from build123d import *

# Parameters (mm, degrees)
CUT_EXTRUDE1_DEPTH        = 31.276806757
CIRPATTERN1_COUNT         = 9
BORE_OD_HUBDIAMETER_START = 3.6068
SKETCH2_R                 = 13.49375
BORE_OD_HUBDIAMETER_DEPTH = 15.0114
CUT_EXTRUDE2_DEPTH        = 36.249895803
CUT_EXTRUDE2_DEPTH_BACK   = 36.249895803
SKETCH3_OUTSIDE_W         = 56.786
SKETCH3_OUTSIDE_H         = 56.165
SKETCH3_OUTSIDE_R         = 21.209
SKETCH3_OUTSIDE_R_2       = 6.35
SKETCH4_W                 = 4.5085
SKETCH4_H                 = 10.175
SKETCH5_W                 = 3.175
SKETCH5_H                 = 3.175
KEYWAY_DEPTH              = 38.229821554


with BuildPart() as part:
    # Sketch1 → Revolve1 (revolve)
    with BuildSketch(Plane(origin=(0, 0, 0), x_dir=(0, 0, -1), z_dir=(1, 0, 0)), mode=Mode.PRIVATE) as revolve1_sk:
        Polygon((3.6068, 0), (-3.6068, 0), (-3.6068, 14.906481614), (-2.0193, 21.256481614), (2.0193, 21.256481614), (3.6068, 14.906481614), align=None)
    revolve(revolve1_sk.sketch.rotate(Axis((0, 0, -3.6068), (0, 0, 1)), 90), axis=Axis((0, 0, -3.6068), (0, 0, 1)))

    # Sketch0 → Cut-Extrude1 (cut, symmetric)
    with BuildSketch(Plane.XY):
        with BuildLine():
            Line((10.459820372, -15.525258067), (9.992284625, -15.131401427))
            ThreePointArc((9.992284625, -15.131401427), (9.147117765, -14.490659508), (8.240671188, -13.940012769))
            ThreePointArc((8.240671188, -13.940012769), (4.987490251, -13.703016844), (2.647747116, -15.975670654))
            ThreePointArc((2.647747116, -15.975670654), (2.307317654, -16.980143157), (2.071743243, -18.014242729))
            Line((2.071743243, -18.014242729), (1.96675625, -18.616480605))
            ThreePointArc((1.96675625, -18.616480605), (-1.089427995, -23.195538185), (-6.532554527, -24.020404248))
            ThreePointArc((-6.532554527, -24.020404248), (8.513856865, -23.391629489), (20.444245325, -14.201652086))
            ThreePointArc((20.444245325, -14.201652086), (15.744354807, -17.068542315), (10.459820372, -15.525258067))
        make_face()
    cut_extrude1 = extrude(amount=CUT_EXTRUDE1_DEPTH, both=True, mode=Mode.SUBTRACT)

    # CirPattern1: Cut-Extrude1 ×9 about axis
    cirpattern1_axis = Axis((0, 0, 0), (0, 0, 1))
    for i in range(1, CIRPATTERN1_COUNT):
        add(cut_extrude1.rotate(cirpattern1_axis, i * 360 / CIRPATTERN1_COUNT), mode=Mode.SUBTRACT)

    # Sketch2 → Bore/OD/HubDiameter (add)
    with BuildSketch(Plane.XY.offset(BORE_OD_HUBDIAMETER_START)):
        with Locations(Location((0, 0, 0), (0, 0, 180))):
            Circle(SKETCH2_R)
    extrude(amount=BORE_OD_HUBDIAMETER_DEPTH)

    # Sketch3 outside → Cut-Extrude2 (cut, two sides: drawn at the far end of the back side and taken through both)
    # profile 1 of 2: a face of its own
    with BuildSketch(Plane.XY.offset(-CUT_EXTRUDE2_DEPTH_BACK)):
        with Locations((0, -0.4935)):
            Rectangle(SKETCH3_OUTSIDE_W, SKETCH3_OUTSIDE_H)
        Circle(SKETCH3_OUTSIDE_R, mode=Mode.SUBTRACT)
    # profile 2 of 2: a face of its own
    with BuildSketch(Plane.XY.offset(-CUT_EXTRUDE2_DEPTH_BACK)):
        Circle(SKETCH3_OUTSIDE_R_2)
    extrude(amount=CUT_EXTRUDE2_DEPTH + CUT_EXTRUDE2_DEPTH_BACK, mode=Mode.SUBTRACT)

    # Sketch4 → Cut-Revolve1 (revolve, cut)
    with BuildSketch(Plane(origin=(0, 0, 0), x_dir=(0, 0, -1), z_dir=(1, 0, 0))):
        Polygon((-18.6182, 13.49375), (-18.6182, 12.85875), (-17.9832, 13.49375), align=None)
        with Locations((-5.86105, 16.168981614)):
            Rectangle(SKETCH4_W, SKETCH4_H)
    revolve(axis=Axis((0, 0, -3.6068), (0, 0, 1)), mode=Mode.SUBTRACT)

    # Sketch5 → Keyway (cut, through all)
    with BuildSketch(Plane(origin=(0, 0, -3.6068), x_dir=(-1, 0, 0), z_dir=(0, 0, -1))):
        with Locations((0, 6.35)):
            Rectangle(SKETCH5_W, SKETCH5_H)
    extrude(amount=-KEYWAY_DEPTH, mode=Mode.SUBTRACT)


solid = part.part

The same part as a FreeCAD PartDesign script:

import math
import FreeCAD as App
import Part
import Sketcher

V = App.Vector
Q = App.Units.Quantity

doc = App.newDocument("Part")
body = doc.addObject("PartDesign::Body", "Body")

# Sketch on YZ plane
sketch1 = doc.addObject("Sketcher::SketchObject", "Sketch")
body.addObject(sketch1)
sketch1.AttachmentSupport = (doc.YZ_Plane, [""])
sketch1.MapMode = "FlatFace"
sketch1.addGeometry(Part.LineSegment(V(0, 3.6, 0), V(0, -3.6, 0)), False)
sketch1.addGeometry(Part.LineSegment(V(0, -3.6, 0), V(14.9, -3.6, 0)), False)
sketch1.addGeometry(Part.LineSegment(V(14.9, -3.6, 0), V(21.3, -2, 0)), False)
sketch1.addGeometry(Part.LineSegment(V(21.3, -2, 0), V(21.3, 2, 0)), False)
sketch1.addGeometry(Part.LineSegment(V(21.3, 2, 0), V(14.9, 3.6, 0)), False)
sketch1.addGeometry(Part.LineSegment(V(14.9, 3.6, 0), V(0, 3.6, 0)), False)
sketch1.addConstraint(Sketcher.Constraint("Coincident", 0, 2, 1, 1))
sketch1.addConstraint(Sketcher.Constraint("Coincident", 1, 2, 2, 1))
sketch1.addConstraint(Sketcher.Constraint("Coincident", 2, 2, 3, 1))
sketch1.addConstraint(Sketcher.Constraint("Coincident", 3, 2, 4, 1))
sketch1.addConstraint(Sketcher.Constraint("Coincident", 4, 2, 5, 1))
sketch1.addConstraint(Sketcher.Constraint("Coincident", 5, 2, 0, 1))
sketch1.addConstraint(Sketcher.Constraint("Vertical", 0))
sketch1.addConstraint(Sketcher.Constraint("Horizontal", 1))
sketch1.addConstraint(Sketcher.Constraint("Vertical", 3))
sketch1.addConstraint(Sketcher.Constraint("Horizontal", 5))
sketch1.addConstraint(Sketcher.Constraint("Symmetric", 0, 2, 5, 2, -1, 1))
sketch1.addConstraint(Sketcher.Constraint("Vertical", 1, 2, 4, 2))
sketch1.addConstraint(Sketcher.Constraint("Equal", 2, 4))
sketch1.addConstraint(Sketcher.Constraint("DistanceY", 0, 2, 0, 1, Q("0.284 in")))
sketch1.addConstraint(Sketcher.Constraint("DistanceY", 3, 1, 3, 2, Q("0.159 in")))
sketch1.addConstraint(Sketcher.Constraint("DistanceX", 1, 2, 2, 2, Q("0.25 in")))
sketch1.addConstraint(Sketcher.Constraint("DistanceX", 1, 1, 1, 2, 14.906482))
revolution = doc.addObject("PartDesign::Revolution", "Revolution")
body.addObject(revolution)
revolution.Profile = sketch1
revolution.ReferenceAxis = (sketch1, ["V_Axis"])
revolution.Angle = 360

# Sketch on XY plane
sketch2 = doc.addObject("Sketcher::SketchObject", "Sketch001")
body.addObject(sketch2)
sketch2.AttachmentSupport = (doc.XY_Plane, [""])
sketch2.MapMode = "FlatFace"
sketch2.addGeometry(Part.LineSegment(V(10.5, -15.5, 0), V(10, -15.1, 0)), False)
sketch2.addGeometry(Part.ArcOfCircle(Part.Circle(V(3.3, -23, 0), V(0, 0, 1), 10.3), math.radians(49.89), math.radians(61.67)), False)
sketch2.addGeometry(Part.ArcOfCircle(Part.Circle(V(6.3, -17.4, 0), V(0, 0, 1), 4), math.radians(62), math.radians(158)), False)
sketch2.addGeometry(Part.ArcOfCircle(Part.Circle(V(12.2, -19.8, 0), V(0, 0, 1), 10.3), math.radians(158.33), math.radians(170.11)), False)
sketch2.addGeometry(Part.LineSegment(V(2.1, -18, 0), V(2, -18.6, 0)), False)
sketch2.addGeometry(Part.ArcOfCircle(Part.Circle(V(-4.7, -17.4, 0), V(0, 0, 1), 6.8), math.radians(-105), math.radians(-10)), False)
sketch2.addGeometry(Part.ArcOfCircle(Part.Circle(V(0, 0, 0), V(0, 0, 1), 24.9), math.radians(-105), math.radians(-35)), False)
sketch2.addGeometry(Part.ArcOfCircle(Part.Circle(V(14.8, -10.3, 0), V(0, 0, 1), 6.8), math.radians(-130), math.radians(-35)), False)
sketch2.addConstraint(Sketcher.Constraint("Tangent", 0, 2, 1, 1))
sketch2.addConstraint(Sketcher.Constraint("Tangent", 1, 2, 2, 1))
sketch2.addConstraint(Sketcher.Constraint("Tangent", 2, 2, 3, 1))
sketch2.addConstraint(Sketcher.Constraint("Tangent", 3, 2, 4, 1))
sketch2.addConstraint(Sketcher.Constraint("Tangent", 4, 2, 5, 2))
sketch2.addConstraint(Sketcher.Constraint("Tangent", 5, 1, 6, 1))
sketch2.addConstraint(Sketcher.Constraint("Tangent", 6, 2, 7, 2))
sketch2.addConstraint(Sketcher.Constraint("Tangent", 7, 1, 0, 1))
sketch2.addConstraint(Sketcher.Constraint("Coincident", 6, 3, -1, 1))
sketch2.addConstraint(Sketcher.Constraint("Equal", 1, 3))
sketch2.addConstraint(Sketcher.Constraint("Equal", 5, 7))
sketch2.addConstraint(Sketcher.Constraint("Horizontal", 2, 3, 5, 3))
sketch2.addConstraint(Sketcher.Constraint("Equal", 0, 4))
sketch2.addConstraint(Sketcher.Constraint("DistanceX", -1, 1, 2, 3, Q("0.25 in")))
sketch2.addConstraint(Sketcher.Constraint("Radius", 1, 10.323552))
sketch2.addConstraint(Sketcher.Constraint("DistanceX", 5, 3, -1, 1, Q("0.1868 in")))
sketch2.addConstraint(Sketcher.Constraint("Radius", 2, 3.983712))
sketch2.addConstraint(Sketcher.Constraint("Radius", 5, 6.812695))
sketch2.addConstraint(Sketcher.Constraint("Radius", 6, 24.892852))
sketch2.addConstraint(Sketcher.Constraint("DistanceY", 0, 2, -1, 1, 15.131401))
sketch2.addConstraint(Sketcher.Constraint("DistanceY", 4, 2, 2, 3, 1.169999))
pocket1 = doc.addObject("PartDesign::Pocket", "Pocket")
body.addObject(pocket1)
pocket1.Profile = sketch2
pocket1.Length = 62.553614
pocket1.Midplane = True
doc.recompute()

polarpattern = doc.addObject("PartDesign::PolarPattern", "PolarPattern")
body.addObject(polarpattern)
polarpattern.Originals = [pocket1]
polarpattern.Axis = (doc.Z_Axis, [""])
polarpattern.Angle = 360
polarpattern.Occurrences = 9
body.Tip = polarpattern

# Sketch on XY plane
sketch3 = doc.addObject("Sketcher::SketchObject", "Sketch002")
body.addObject(sketch3)
sketch3.AttachmentSupport = (doc.XY_Plane, [""])
sketch3.MapMode = "FlatFace"
sketch3.AttachmentOffset = App.Placement(V(0, 0, 0.142 * 25.4), App.Rotation())
sketch3.addGeometry(Part.Circle(V(0, 0, 0), V(0, 0, 1), 13), False)
sketch3.addConstraint(Sketcher.Constraint("Coincident", 0, 3, -1, 1))
sketch3.addConstraint(Sketcher.Constraint("Diameter", 0, Q("1.0625 in")))
pad1 = doc.addObject("PartDesign::Pad", "Pad")
body.addObject(pad1)
pad1.Profile = sketch3
pad1.Length = Q("0.591 in")

# Sketch on XY plane
sketch4 = doc.addObject("Sketcher::SketchObject", "Sketch003")
body.addObject(sketch4)
sketch4.AttachmentSupport = (doc.XY_Plane, [""])
sketch4.MapMode = "FlatFace"
sketch4.addGeometry(Part.LineSegment(V(-28, 28, 0), V(-28, -29, 0)), False)
sketch4.addGeometry(Part.LineSegment(V(-28, -29, 0), V(28, -29, 0)), False)
sketch4.addGeometry(Part.LineSegment(V(28, -29, 0), V(28, 28, 0)), False)
sketch4.addGeometry(Part.LineSegment(V(28, 28, 0), V(-28, 28, 0)), False)
sketch4.addGeometry(Part.Circle(V(0, 0, 0), V(0, 0, 1), 21), False)
sketch4.addGeometry(Part.Circle(V(0, 0, 0), V(0, 0, 1), 6), False)
sketch4.addConstraint(Sketcher.Constraint("Coincident", 0, 2, 1, 1))
sketch4.addConstraint(Sketcher.Constraint("Coincident", 1, 2, 2, 1))
sketch4.addConstraint(Sketcher.Constraint("Coincident", 2, 2, 3, 1))
sketch4.addConstraint(Sketcher.Constraint("Coincident", 3, 2, 0, 1))
sketch4.addConstraint(Sketcher.Constraint("Vertical", 0))
sketch4.addConstraint(Sketcher.Constraint("Horizontal", 1))
sketch4.addConstraint(Sketcher.Constraint("Vertical", 2))
sketch4.addConstraint(Sketcher.Constraint("Horizontal", 3))
sketch4.addConstraint(Sketcher.Constraint("Coincident", 4, 3, -1, 1))
sketch4.addConstraint(Sketcher.Constraint("Coincident", 5, 3, -1, 1))
sketch4.addConstraint(Sketcher.Constraint("Diameter", 5, Q("0.5 in")))
sketch4.addConstraint(Sketcher.Constraint("Diameter", 4, Q("1.67 in")))
sketch4.addConstraint(Sketcher.Constraint("DistanceX", 1, 1, 1, 2, 56.786))
sketch4.addConstraint(Sketcher.Constraint("DistanceY", 0, 2, 0, 1, 56.165))
sketch4.addConstraint(Sketcher.Constraint("DistanceX", 0, 2, -1, 1, 28.393))
sketch4.addConstraint(Sketcher.Constraint("DistanceY", 0, 2, -1, 1, 28.576))
pocket2 = doc.addObject("PartDesign::Pocket", "Pocket001")
body.addObject(pocket2)
pocket2.Profile = sketch4
pocket2.Type = "ThroughAll"
pocket2.Midplane = True

# Sketch on YZ plane
sketch5 = doc.addObject("Sketcher::SketchObject", "Sketch004")
body.addObject(sketch5)
sketch5.AttachmentSupport = (doc.YZ_Plane, [""])
sketch5.MapMode = "FlatFace"
sketch5.addGeometry(Part.LineSegment(V(13.5, 18.6, 0), V(12.9, 18.6, 0)), False)
sketch5.addGeometry(Part.LineSegment(V(12.9, 18.6, 0), V(13.5, 18, 0)), False)
sketch5.addGeometry(Part.LineSegment(V(13.5, 18, 0), V(13.5, 18.6, 0)), False)
sketch5.addGeometry(Part.LineSegment(V(21.3, 8.1, 0), V(11.1, 8.1, 0)), False)
sketch5.addGeometry(Part.LineSegment(V(11.1, 8.1, 0), V(11.1, 3.6, 0)), False)
sketch5.addGeometry(Part.LineSegment(V(11.1, 3.6, 0), V(21.3, 3.6, 0)), False)
sketch5.addGeometry(Part.LineSegment(V(21.3, 3.6, 0), V(21.3, 8.1, 0)), False)
sketch5.addConstraint(Sketcher.Constraint("Coincident", 0, 2, 1, 1))
sketch5.addConstraint(Sketcher.Constraint("Coincident", 1, 2, 2, 1))
sketch5.addConstraint(Sketcher.Constraint("Coincident", 2, 2, 0, 1))
sketch5.addConstraint(Sketcher.Constraint("Coincident", 3, 2, 4, 1))
sketch5.addConstraint(Sketcher.Constraint("Coincident", 4, 2, 5, 1))
sketch5.addConstraint(Sketcher.Constraint("Coincident", 5, 2, 6, 1))
sketch5.addConstraint(Sketcher.Constraint("Coincident", 6, 2, 3, 1))
sketch5.addConstraint(Sketcher.Constraint("Horizontal", 0))
sketch5.addConstraint(Sketcher.Constraint("Vertical", 2))
sketch5.addConstraint(Sketcher.Constraint("Horizontal", 3))
sketch5.addConstraint(Sketcher.Constraint("Vertical", 4))
sketch5.addConstraint(Sketcher.Constraint("Horizontal", 5))
sketch5.addConstraint(Sketcher.Constraint("Vertical", 6))
sketch5.addConstraint(Sketcher.Constraint("Equal", 0, 2))
sketch5.addConstraint(Sketcher.Constraint("DistanceX", 0, 2, 0, 1, Q("0.025 in")))
sketch5.addConstraint(Sketcher.Constraint("DistanceY", 4, 2, 4, 1, Q("0.1775 in")))
sketch5.addConstraint(Sketcher.Constraint("DistanceY", -1, 1, 0, 2, Q("0.733 in")))
sketch5.addConstraint(Sketcher.Constraint("DistanceX", -1, 1, 1, 2, Q("0.53125 in")))
sketch5.addConstraint(Sketcher.Constraint("DistanceY", -1, 1, 4, 2, Q("0.142 in")))
sketch5.addConstraint(Sketcher.Constraint("DistanceX", 3, 2, 3, 1, 10.175))
sketch5.addConstraint(Sketcher.Constraint("DistanceX", -1, 1, 3, 2, 11.081482))
groove = doc.addObject("PartDesign::Groove", "Groove")
body.addObject(groove)
groove.Profile = sketch5
groove.ReferenceAxis = (sketch5, ["V_Axis"])
groove.Angle = 360

# Sketch on XY plane
sketch6 = doc.addObject("Sketcher::SketchObject", "Sketch005")
body.addObject(sketch6)
sketch6.AttachmentSupport = (doc.XY_Plane, [""])
sketch6.MapMode = "FlatFace"
sketch6.AttachmentOffset = App.Placement(V(0, 0, -0.142 * 25.4), App.Rotation())
sketch6.addGeometry(Part.LineSegment(V(1.6, 7.9, 0), V(1.6, 4.8, 0)), False)
sketch6.addGeometry(Part.LineSegment(V(1.6, 4.8, 0), V(-1.6, 4.8, 0)), False)
sketch6.addGeometry(Part.LineSegment(V(-1.6, 4.8, 0), V(-1.6, 7.9, 0)), False)
sketch6.addGeometry(Part.LineSegment(V(-1.6, 7.9, 0), V(1.6, 7.9, 0)), False)
sketch6.addConstraint(Sketcher.Constraint("Coincident", 0, 2, 1, 1))
sketch6.addConstraint(Sketcher.Constraint("Coincident", 1, 2, 2, 1))
sketch6.addConstraint(Sketcher.Constraint("Coincident", 2, 2, 3, 1))
sketch6.addConstraint(Sketcher.Constraint("Coincident", 3, 2, 0, 1))
sketch6.addConstraint(Sketcher.Constraint("Vertical", 0))
sketch6.addConstraint(Sketcher.Constraint("Horizontal", 1))
sketch6.addConstraint(Sketcher.Constraint("Vertical", 2))
sketch6.addConstraint(Sketcher.Constraint("Horizontal", 3))
sketch6.addConstraint(Sketcher.Constraint("Equal", 3, 0))
sketch6.addConstraint(Sketcher.Constraint("DistanceX", 1, 2, 1, 1, Q("0.125 in")))
sketch6.addConstraint(Sketcher.Constraint("DistanceX", -1, 1, 0, 2, Q("0.0625 in")))
sketch6.addConstraint(Sketcher.Constraint("DistanceY", -1, 1, 0, 2, Q("0.1875 in")))
pocket3 = doc.addObject("PartDesign::Pocket", "Pocket002")
body.addObject(pocket3)
pocket3.Profile = sketch6
pocket3.Type = "ThroughAll"
pocket3.Reversed = True

doc.recompute()
